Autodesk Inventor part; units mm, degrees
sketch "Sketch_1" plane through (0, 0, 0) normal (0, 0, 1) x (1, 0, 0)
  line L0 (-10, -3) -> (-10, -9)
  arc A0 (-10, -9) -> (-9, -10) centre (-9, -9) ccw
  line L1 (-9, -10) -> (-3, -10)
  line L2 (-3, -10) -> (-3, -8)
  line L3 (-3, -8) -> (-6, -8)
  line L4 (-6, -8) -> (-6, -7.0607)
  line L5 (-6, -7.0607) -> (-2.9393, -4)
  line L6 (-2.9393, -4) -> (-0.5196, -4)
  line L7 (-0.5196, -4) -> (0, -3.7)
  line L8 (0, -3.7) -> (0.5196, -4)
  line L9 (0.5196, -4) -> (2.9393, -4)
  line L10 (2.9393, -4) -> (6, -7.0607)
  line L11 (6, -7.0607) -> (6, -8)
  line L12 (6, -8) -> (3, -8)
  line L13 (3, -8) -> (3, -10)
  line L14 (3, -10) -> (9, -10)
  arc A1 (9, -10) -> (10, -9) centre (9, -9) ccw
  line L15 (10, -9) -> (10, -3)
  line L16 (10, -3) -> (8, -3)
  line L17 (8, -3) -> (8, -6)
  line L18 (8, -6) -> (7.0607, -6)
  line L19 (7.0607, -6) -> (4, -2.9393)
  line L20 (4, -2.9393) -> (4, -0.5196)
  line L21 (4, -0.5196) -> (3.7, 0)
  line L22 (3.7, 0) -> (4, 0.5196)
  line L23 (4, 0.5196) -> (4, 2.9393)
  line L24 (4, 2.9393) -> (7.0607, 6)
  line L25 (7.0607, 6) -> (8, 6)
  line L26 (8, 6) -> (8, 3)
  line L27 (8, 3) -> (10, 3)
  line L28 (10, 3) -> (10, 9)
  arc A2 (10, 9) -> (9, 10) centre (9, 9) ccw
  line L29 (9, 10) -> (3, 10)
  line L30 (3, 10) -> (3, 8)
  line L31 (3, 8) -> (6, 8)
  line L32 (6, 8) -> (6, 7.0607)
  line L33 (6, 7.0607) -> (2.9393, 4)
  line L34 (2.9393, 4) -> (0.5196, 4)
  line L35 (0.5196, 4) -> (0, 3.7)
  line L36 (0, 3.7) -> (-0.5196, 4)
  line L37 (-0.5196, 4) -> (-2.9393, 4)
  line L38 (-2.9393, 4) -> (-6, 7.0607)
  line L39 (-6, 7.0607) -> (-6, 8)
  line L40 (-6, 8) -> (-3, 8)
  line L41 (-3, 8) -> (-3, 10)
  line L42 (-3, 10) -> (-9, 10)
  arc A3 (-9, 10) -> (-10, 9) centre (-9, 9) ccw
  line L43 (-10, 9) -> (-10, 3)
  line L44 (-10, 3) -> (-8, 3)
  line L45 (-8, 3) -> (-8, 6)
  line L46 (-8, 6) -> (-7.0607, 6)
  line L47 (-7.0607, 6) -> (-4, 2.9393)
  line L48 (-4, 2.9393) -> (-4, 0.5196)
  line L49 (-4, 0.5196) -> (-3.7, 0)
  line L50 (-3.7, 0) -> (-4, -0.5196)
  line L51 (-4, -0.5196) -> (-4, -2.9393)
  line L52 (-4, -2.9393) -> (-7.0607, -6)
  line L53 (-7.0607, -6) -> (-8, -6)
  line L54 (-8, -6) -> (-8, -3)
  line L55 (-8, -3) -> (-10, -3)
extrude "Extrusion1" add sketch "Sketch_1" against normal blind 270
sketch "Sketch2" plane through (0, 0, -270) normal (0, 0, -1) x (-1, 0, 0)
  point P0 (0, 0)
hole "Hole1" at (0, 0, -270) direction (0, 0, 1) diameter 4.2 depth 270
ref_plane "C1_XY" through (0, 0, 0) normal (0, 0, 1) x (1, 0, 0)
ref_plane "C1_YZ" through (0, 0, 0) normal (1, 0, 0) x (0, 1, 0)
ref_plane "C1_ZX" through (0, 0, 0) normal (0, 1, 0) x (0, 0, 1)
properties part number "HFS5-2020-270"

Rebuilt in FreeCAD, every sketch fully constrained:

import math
import FreeCAD as App
import Part
import Sketcher
Q = App.Units.Quantity

doc = App.newDocument("Part")
body = doc.addObject("PartDesign::Body", "Body")

# Sketch on XY plane
sketch1 = body.newObject("Sketcher::SketchObject", "Sketch")
sketch1.AttachmentSupport = (doc.getObject("XY_Plane"), [""])
sketch1.MapMode = "FlatFace"
sketch1.addGeometry([
    Part.LineSegment(App.Vector(-8, -3, 0), App.Vector(-10, -3, 0)),  # 0
    Part.LineSegment(App.Vector(-10, -3, 0), App.Vector(-10, -9, 0)),  # 1
    Part.ArcOfCircle(Part.Circle(App.Vector(-9, -9, 0), App.Vector(0, 0, 1), 1), math.radians(180), math.radians(270)),  # 2
    Part.LineSegment(App.Vector(-9, -10, 0), App.Vector(-3, -10, 0)),  # 3
    Part.LineSegment(App.Vector(-3, -10, 0), App.Vector(-3, -8, 0)),  # 4
    Part.LineSegment(App.Vector(-3, -8, 0), App.Vector(-6, -8, 0)),  # 5
    Part.LineSegment(App.Vector(-6, -8, 0), App.Vector(-6, -7.1, 0)),  # 6
    Part.LineSegment(App.Vector(-6, -7.1, 0), App.Vector(-2.9, -4, 0)),  # 7
    Part.LineSegment(App.Vector(-2.9, -4, 0), App.Vector(-0.5, -4, 0)),  # 8
    Part.LineSegment(App.Vector(-0.5, -4, 0), App.Vector(0, -3.7, 0)),  # 9
    Part.LineSegment(App.Vector(0, -3.7, 0), App.Vector(0.5, -4, 0)),  # 10
    Part.LineSegment(App.Vector(0.5, -4, 0), App.Vector(2.9, -4, 0)),  # 11
    Part.LineSegment(App.Vector(2.9, -4, 0), App.Vector(6, -7.1, 0)),  # 12
    Part.LineSegment(App.Vector(6, -7.1, 0), App.Vector(6, -8, 0)),  # 13
    Part.LineSegment(App.Vector(6, -8, 0), App.Vector(3, -8, 0)),  # 14
    Part.LineSegment(App.Vector(3, -8, 0), App.Vector(3, -10, 0)),  # 15
    Part.LineSegment(App.Vector(3, -10, 0), App.Vector(9, -10, 0)),  # 16
    Part.ArcOfCircle(Part.Circle(App.Vector(9, -9, 0), App.Vector(0, 0, 1), 1), math.radians(-90), math.radians(0)),  # 17
    Part.LineSegment(App.Vector(10, -9, 0), App.Vector(10, -3, 0)),  # 18
    Part.LineSegment(App.Vector(10, -3, 0), App.Vector(8, -3, 0)),  # 19
    Part.LineSegment(App.Vector(8, -3, 0), App.Vector(8, -6, 0)),  # 20
    Part.LineSegment(App.Vector(8, -6, 0), App.Vector(7.1, -6, 0)),  # 21
    Part.LineSegment(App.Vector(7.1, -6, 0), App.Vector(4, -2.9, 0)),  # 22
    Part.LineSegment(App.Vector(4, -2.9, 0), App.Vector(4, -0.5, 0)),  # 23
    Part.LineSegment(App.Vector(4, -0.5, 0), App.Vector(3.7, 0, 0)),  # 24
    Part.LineSegment(App.Vector(3.7, 0, 0), App.Vector(4, 0.5, 0)),  # 25
    Part.LineSegment(App.Vector(4, 0.5, 0), App.Vector(4, 2.9, 0)),  # 26
    Part.LineSegment(App.Vector(4, 2.9, 0), App.Vector(7.1, 6, 0)),  # 27
    Part.LineSegment(App.Vector(7.1, 6, 0), App.Vector(8, 6, 0)),  # 28
    Part.LineSegment(App.Vector(8, 6, 0), App.Vector(8, 3, 0)),  # 29
    Part.LineSegment(App.Vector(8, 3, 0), App.Vector(10, 3, 0)),  # 30
    Part.LineSegment(App.Vector(10, 3, 0), App.Vector(10, 9, 0)),  # 31
    Part.ArcOfCircle(Part.Circle(App.Vector(9, 9, 0), App.Vector(0, 0, 1), 1), math.radians(0), math.radians(90)),  # 32
    Part.LineSegment(App.Vector(9, 10, 0), App.Vector(3, 10, 0)),  # 33
    Part.LineSegment(App.Vector(3, 10, 0), App.Vector(3, 8, 0)),  # 34
    Part.LineSegment(App.Vector(3, 8, 0), App.Vector(6, 8, 0)),  # 35
    Part.LineSegment(App.Vector(6, 8, 0), App.Vector(6, 7.1, 0)),  # 36
    Part.LineSegment(App.Vector(6, 7.1, 0), App.Vector(2.9, 4, 0)),  # 37
    Part.LineSegment(App.Vector(2.9, 4, 0), App.Vector(0.5, 4, 0)),  # 38
    Part.LineSegment(App.Vector(0.5, 4, 0), App.Vector(0, 3.7, 0)),  # 39
    Part.LineSegment(App.Vector(0, 3.7, 0), App.Vector(-0.5, 4, 0)),  # 40
    Part.LineSegment(App.Vector(-0.5, 4, 0), App.Vector(-2.9, 4, 0)),  # 41
    Part.LineSegment(App.Vector(-2.9, 4, 0), App.Vector(-6, 7.1, 0)),  # 42
    Part.LineSegment(App.Vector(-6, 7.1, 0), App.Vector(-6, 8, 0)),  # 43
    Part.LineSegment(App.Vector(-6, 8, 0), App.Vector(-3, 8, 0)),  # 44
    Part.LineSegment(App.Vector(-3, 8, 0), App.Vector(-3, 10, 0)),  # 45
    Part.LineSegment(App.Vector(-3, 10, 0), App.Vector(-9, 10, 0)),  # 46
    Part.ArcOfCircle(Part.Circle(App.Vector(-9, 9, 0), App.Vector(0, 0, 1), 1), math.radians(90), math.radians(180)),  # 47
    Part.LineSegment(App.Vector(-10, 9, 0), App.Vector(-10, 3, 0)),  # 48
    Part.LineSegment(App.Vector(-10, 3, 0), App.Vector(-8, 3, 0)),  # 49
    Part.LineSegment(App.Vector(-8, 3, 0), App.Vector(-8, 6, 0)),  # 50
    Part.LineSegment(App.Vector(-8, 6, 0), App.Vector(-7.1, 6, 0)),  # 51
    Part.LineSegment(App.Vector(-7.1, 6, 0), App.Vector(-4, 2.9, 0)),  # 52
    Part.LineSegment(App.Vector(-4, 2.9, 0), App.Vector(-4, 0.5, 0)),  # 53
    Part.LineSegment(App.Vector(-4, 0.5, 0), App.Vector(-3.7, 0, 0)),  # 54
    Part.LineSegment(App.Vector(-3.7, 0, 0), App.Vector(-4, -0.5, 0)),  # 55
    Part.LineSegment(App.Vector(-4, -0.5, 0), App.Vector(-4, -2.9, 0)),  # 56
    Part.LineSegment(App.Vector(-4, -2.9, 0), App.Vector(-7.1, -6, 0)),  # 57
    Part.LineSegment(App.Vector(-7.1, -6, 0), App.Vector(-8, -6, 0)),  # 58
    Part.LineSegment(App.Vector(-8, -6, 0), App.Vector(-8, -3, 0)),  # 59
], False)
sketch1.addConstraint([
    Sketcher.Constraint("Coincident", 0, 2, 1, 1),
    Sketcher.Constraint("Tangent", 1, 2, 2, 1),
    Sketcher.Constraint("Tangent", 2, 2, 3, 1),
    Sketcher.Constraint("Coincident", 3, 2, 4, 1),
    Sketcher.Constraint("Coincident", 4, 2, 5, 1),
    Sketcher.Constraint("Coincident", 5, 2, 6, 1),
    Sketcher.Constraint("Coincident", 6, 2, 7, 1),
    Sketcher.Constraint("Coincident", 7, 2, 8, 1),
    Sketcher.Constraint("Coincident", 8, 2, 9, 1),
    Sketcher.Constraint("Coincident", 9, 2, 10, 1),
    Sketcher.Constraint("Coincident", 10, 2, 11, 1),
    Sketcher.Constraint("Coincident", 11, 2, 12, 1),
    Sketcher.Constraint("Coincident", 12, 2, 13, 1),
    Sketcher.Constraint("Coincident", 13, 2, 14, 1),
    Sketcher.Constraint("Coincident", 14, 2, 15, 1),
    Sketcher.Constraint("Coincident", 15, 2, 16, 1),
    Sketcher.Constraint("Tangent", 16, 2, 17, 1),
    Sketcher.Constraint("Tangent", 17, 2, 18, 1),
    Sketcher.Constraint("Coincident", 18, 2, 19, 1),
    Sketcher.Constraint("Coincident", 19, 2, 20, 1),
    Sketcher.Constraint("Coincident", 20, 2, 21, 1),
    Sketcher.Constraint("Coincident", 21, 2, 22, 1),
    Sketcher.Constraint("Coincident", 22, 2, 23, 1),
    Sketcher.Constraint("Coincident", 23, 2, 24, 1),
    Sketcher.Constraint("Coincident", 24, 2, 25, 1),
    Sketcher.Constraint("Coincident", 25, 2, 26, 1),
    Sketcher.Constraint("Coincident", 26, 2, 27, 1),
    Sketcher.Constraint("Coincident", 27, 2, 28, 1),
    Sketcher.Constraint("Coincident", 28, 2, 29, 1),
    Sketcher.Constraint("Coincident", 29, 2, 30, 1),
    Sketcher.Constraint("Coincident", 30, 2, 31, 1),
    Sketcher.Constraint("Tangent", 31, 2, 32, 1),
    Sketcher.Constraint("Tangent", 32, 2, 33, 1),
    Sketcher.Constraint("Coincident", 33, 2, 34, 1),
    Sketcher.Constraint("Coincident", 34, 2, 35, 1),
    Sketcher.Constraint("Coincident", 35, 2, 36, 1),
    Sketcher.Constraint("Coincident", 36, 2, 37, 1),
    Sketcher.Constraint("Coincident", 37, 2, 38, 1),
    Sketcher.Constraint("Coincident", 38, 2, 39, 1),
    Sketcher.Constraint("Coincident", 39, 2, 40, 1),
    Sketcher.Constraint("Coincident", 40, 2, 41, 1),
    Sketcher.Constraint("Coincident", 41, 2, 42, 1),
    Sketcher.Constraint("Coincident", 42, 2, 43, 1),
    Sketcher.Constraint("Coincident", 43, 2, 44, 1),
    Sketcher.Constraint("Coincident", 44, 2, 45, 1),
    Sketcher.Constraint("Coincident", 45, 2, 46, 1),
    Sketcher.Constraint("Tangent", 46, 2, 47, 1),
    Sketcher.Constraint("Tangent", 47, 2, 48, 1),
    Sketcher.Constraint("Coincident", 48, 2, 49, 1),
    Sketcher.Constraint("Coincident", 49, 2, 50, 1),
    Sketcher.Constraint("Coincident", 50, 2, 51, 1),
    Sketcher.Constraint("Coincident", 51, 2, 52, 1),
    Sketcher.Constraint("Coincident", 52, 2, 53, 1),
    Sketcher.Constraint("Coincident", 53, 2, 54, 1),
    Sketcher.Constraint("Coincident", 54, 2, 55, 1),
    Sketcher.Constraint("Coincident", 55, 2, 56, 1),
    Sketcher.Constraint("Coincident", 56, 2, 57, 1),
    Sketcher.Constraint("Coincident", 57, 2, 58, 1),
    Sketcher.Constraint("Coincident", 58, 2, 59, 1),
    Sketcher.Constraint("Coincident", 59, 2, 0, 1),
    Sketcher.Constraint("Horizontal", 0),
    Sketcher.Constraint("Vertical", 1),
    Sketcher.Constraint("Horizontal", 3),
    Sketcher.Constraint("Vertical", 4),
    Sketcher.Constraint("Horizontal", 5),
    Sketcher.Constraint("Vertical", 6),
    Sketcher.Constraint("Horizontal", 8),
    Sketcher.Constraint("Horizontal", 11),
    Sketcher.Constraint("Vertical", 13),
    Sketcher.Constraint("Horizontal", 14),
    Sketcher.Constraint("Vertical", 15),
    Sketcher.Constraint("Horizontal", 16),
    Sketcher.Constraint("Vertical", 18),
    Sketcher.Constraint("Horizontal", 19),
    Sketcher.Constraint("Vertical", 20),
    Sketcher.Constraint("Horizontal", 21),
    Sketcher.Constraint("Vertical", 23),
    Sketcher.Constraint("Vertical", 26),
    Sketcher.Constraint("Horizontal", 28),
    Sketcher.Constraint("Vertical", 29),
    Sketcher.Constraint("Horizontal", 30),
    Sketcher.Constraint("Vertical", 31),
    Sketcher.Constraint("Horizontal", 33),
    Sketcher.Constraint("Vertical", 34),
    Sketcher.Constraint("Horizontal", 35),
    Sketcher.Constraint("Vertical", 36),
    Sketcher.Constraint("Horizontal", 38),
    Sketcher.Constraint("Horizontal", 41),
    Sketcher.Constraint("Vertical", 43),
    Sketcher.Constraint("Horizontal", 44),
    Sketcher.Constraint("Vertical", 45),
    Sketcher.Constraint("Horizontal", 46),
    Sketcher.Constraint("Vertical", 48),
    Sketcher.Constraint("Horizontal", 49),
    Sketcher.Constraint("Vertical", 50),
    Sketcher.Constraint("Horizontal", 51),
    Sketcher.Constraint("Vertical", 53),
    Sketcher.Constraint("Vertical", 56),
    Sketcher.Constraint("Horizontal", 58),
    Sketcher.Constraint("Vertical", 59),
    Sketcher.Constraint("Equal", 2, 17),
    Sketcher.Constraint("Equal", 17, 32),
    Sketcher.Constraint("Equal", 32, 47),
    Sketcher.Constraint("Symmetric", 2, 3, 32, 3, -1, 1),
    Sketcher.Constraint("Symmetric", 17, 3, 47, 3, -1, 1),
    Sketcher.Constraint("Symmetric", 4, 2, 34, 2, -1, 1),
    Sketcher.Constraint("Symmetric", 6, 2, 36, 2, -1, 1),
    Sketcher.Constraint("Symmetric", 7, 2, 37, 2, -1, 1),
    Sketcher.Constraint("Symmetric", 9, 2, 39, 2, -1, 1),
    Sketcher.Constraint("Symmetric", 10, 2, 40, 2, -1, 1),
    Sketcher.Constraint("Symmetric", 12, 2, 42, 2, -1, 1),
    Sketcher.Constraint("Symmetric", 14, 2, 44, 2, -1, 1),
    Sketcher.Constraint("Symmetric", 19, 2, 49, 2, -1, 1),
    Sketcher.Constraint("Symmetric", 21, 2, 51, 2, -1, 1),
    Sketcher.Constraint("Symmetric", 22, 2, 52, 2, -1, 1),
    Sketcher.Constraint("Symmetric", 24, 2, 54, 2, -1, 1),
    Sketcher.Constraint("Symmetric", 25, 2, 55, 2, -1, 1),
    Sketcher.Constraint("Symmetric", 27, 2, 57, 2, -1, 1),
    Sketcher.Constraint("Symmetric", 29, 2, 59, 2, -1, 1),
    Sketcher.Constraint("Symmetric", 2, 3, 17, 3, -2),
    Sketcher.Constraint("Symmetric", 8, 2, 10, 2, -2),
    Sketcher.Constraint("Symmetric", 6, 2, 12, 2, -2),
    Sketcher.Constraint("Symmetric", 4, 2, 14, 2, -2),
    Sketcher.Constraint("Symmetric", 29, 2, 49, 2, -2),
    Sketcher.Constraint("Symmetric", 27, 2, 51, 2, -2),
    Sketcher.Constraint("Symmetric", 26, 2, 52, 2, -2),
    Sketcher.Constraint("PointOnObject", 9, 2, -2),
    Sketcher.Constraint("PointOnObject", 24, 2, -1),
    Sketcher.Constraint("Perpendicular", 7, 12),
    Sketcher.Constraint("Parallel", 12, 22),
    Sketcher.Constraint("Perpendicular", 9, 24),
    Sketcher.Constraint("Perpendicular", 10, 25),
    Sketcher.Constraint("Perpendicular", 22, 27),
    Sketcher.Constraint("Perpendicular", 24, 39),
    Sketcher.Constraint("Perpendicular", 37, 42),
    Sketcher.Constraint("Perpendicular", 39, 54),
    Sketcher.Constraint("Perpendicular", 52, 57),
    Sketcher.Constraint("Equal", 46, 1),
    Sketcher.Constraint("Equal", 49, 4),
    Sketcher.Constraint("Equal", 58, 6),
    Sketcher.Constraint("Equal", 44, 20),
    Sketcher.Constraint("Equal", 41, 23),
    Sketcher.Constraint("Equal", 12, 22),
    Sketcher.Constraint("Equal", 10, 24),
    Sketcher.Constraint("Radius", 2, Q("1 mm")),
    Sketcher.Constraint("DistanceX", 0, 2, 0, 1, Q("2 mm")),
    Sketcher.Constraint("DistanceX", 3, 1, 3, 2, Q("6 mm")),
    Sketcher.Constraint("DistanceX", 5, 2, 5, 1, Q("3 mm")),
    Sketcher.Constraint("Angle", 9, Q("30.0007 deg")),
    Sketcher.Constraint("DistanceX", 2, 3, -1, 1, Q("9 mm")),
    Sketcher.Constraint("DistanceY", 7, 2, -1, 1, Q("4 mm")),
    Sketcher.Constraint("Distance", 9, Q("0.6 mm")),
    Sketcher.Constraint("DistanceX", 8, 1, 8, 2, Q("2.4197 mm")),
])
pad1 = body.newObject("PartDesign::Pad", "Pad")
pad1.Profile = sketch1
pad1.Length = 270
pad1.Reversed = True

# Sketch on XY plane
sketch2 = body.newObject("Sketcher::SketchObject", "Sketch001")
sketch2.AttachmentSupport = (doc.getObject("XY_Plane"), [""])
sketch2.MapMode = "FlatFace"
sketch2.AttachmentOffset = App.Placement(App.Vector(0, 0, -270), App.Rotation())
sketch2.addGeometry(Part.Circle(App.Vector(0, 0, 0), App.Vector(0, 0, 1), 2.1), False)
sketch2.addConstraint([
    Sketcher.Constraint("Coincident", 0, 3, -1, 1),
    Sketcher.Constraint("Diameter", 0, Q("4.2 mm")),
])
doc.recompute()
hole = body.newObject("PartDesign::Hole", "Hole")
hole.Profile = sketch2
hole.ThreadType = "None"
hole.Diameter = 4.2
hole.DepthType = "Dimension"
hole.Depth = 270
hole.DrillPoint = "Flat"
hole.Reversed = True

doc.recompute()
